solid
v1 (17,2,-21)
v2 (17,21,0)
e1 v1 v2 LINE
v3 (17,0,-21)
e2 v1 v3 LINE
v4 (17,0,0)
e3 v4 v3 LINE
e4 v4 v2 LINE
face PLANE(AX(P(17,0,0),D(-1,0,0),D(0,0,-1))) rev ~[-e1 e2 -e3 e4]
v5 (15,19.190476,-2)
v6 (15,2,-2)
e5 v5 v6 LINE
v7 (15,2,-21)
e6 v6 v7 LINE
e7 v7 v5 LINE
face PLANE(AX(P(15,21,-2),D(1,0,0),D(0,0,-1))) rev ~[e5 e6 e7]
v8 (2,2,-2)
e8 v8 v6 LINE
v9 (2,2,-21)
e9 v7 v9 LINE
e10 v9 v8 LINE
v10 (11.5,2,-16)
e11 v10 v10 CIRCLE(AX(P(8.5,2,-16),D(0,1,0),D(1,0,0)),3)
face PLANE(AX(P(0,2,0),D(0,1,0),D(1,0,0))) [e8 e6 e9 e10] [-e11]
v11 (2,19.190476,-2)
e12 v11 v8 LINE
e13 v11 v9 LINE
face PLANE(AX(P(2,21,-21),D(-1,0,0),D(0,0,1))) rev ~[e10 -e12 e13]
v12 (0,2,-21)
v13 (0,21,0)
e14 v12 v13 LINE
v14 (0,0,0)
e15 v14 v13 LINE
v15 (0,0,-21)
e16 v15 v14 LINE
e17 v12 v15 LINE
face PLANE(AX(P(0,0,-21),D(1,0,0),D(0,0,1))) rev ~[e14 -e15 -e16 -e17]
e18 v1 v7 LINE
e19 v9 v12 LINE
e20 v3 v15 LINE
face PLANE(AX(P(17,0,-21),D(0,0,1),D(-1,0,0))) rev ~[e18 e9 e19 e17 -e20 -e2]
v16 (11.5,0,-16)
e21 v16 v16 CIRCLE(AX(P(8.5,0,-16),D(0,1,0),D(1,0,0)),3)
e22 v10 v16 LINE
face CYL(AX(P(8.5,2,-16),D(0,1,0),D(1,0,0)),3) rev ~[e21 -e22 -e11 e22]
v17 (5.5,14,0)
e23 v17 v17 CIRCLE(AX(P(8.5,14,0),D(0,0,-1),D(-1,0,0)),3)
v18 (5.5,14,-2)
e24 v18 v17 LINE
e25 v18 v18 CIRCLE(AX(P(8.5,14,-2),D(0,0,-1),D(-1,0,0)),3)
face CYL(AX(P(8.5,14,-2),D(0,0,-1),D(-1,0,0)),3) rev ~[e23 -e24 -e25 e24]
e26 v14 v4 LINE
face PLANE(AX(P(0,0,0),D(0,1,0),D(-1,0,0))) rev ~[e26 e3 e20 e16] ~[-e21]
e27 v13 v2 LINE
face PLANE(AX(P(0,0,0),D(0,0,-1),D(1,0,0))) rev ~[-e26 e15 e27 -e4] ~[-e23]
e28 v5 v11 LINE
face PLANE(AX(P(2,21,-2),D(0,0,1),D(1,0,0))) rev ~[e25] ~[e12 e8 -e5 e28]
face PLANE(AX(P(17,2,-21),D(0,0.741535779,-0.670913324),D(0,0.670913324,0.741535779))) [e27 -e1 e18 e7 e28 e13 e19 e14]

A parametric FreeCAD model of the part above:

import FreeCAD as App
import Part
import Sketcher
from FreeCAD import Vector

doc = App.newDocument("Part")
body = doc.addObject("PartDesign::Body", "Body")

# Sketch on XZ plane
sketch1 = body.newObject("Sketcher::SketchObject", "Sketch")
sketch1.AttachmentSupport = (doc.getObject("XZ_Plane"), [""])
sketch1.MapMode = "FlatFace"
sketch1.addGeometry(Part.LineSegment(Vector(0, -21, 0), Vector(0, 0, 0)), False)
sketch1.addGeometry(Part.LineSegment(Vector(0, 0, 0), Vector(17, 0, 0)), False)
sketch1.addGeometry(Part.LineSegment(Vector(17, 0, 0), Vector(17, -21, 0)), False)
sketch1.addGeometry(Part.LineSegment(Vector(17, -21, 0), Vector(0, -21, 0)), False)
sketch1.addConstraint(Sketcher.Constraint("Coincident", 0, 2, 1, 1))
sketch1.addConstraint(Sketcher.Constraint("Coincident", 1, 2, 2, 1))
sketch1.addConstraint(Sketcher.Constraint("Coincident", 2, 2, 3, 1))
sketch1.addConstraint(Sketcher.Constraint("Coincident", 3, 2, 0, 1))
sketch1.addConstraint(Sketcher.Constraint("Vertical", 0))
sketch1.addConstraint(Sketcher.Constraint("Horizontal", 1))
sketch1.addConstraint(Sketcher.Constraint("Vertical", 2))
sketch1.addConstraint(Sketcher.Constraint("Horizontal", 3))
sketch1.addConstraint(Sketcher.Constraint("Coincident", 0, 2, -1, 1))
sketch1.addConstraint(Sketcher.Constraint("DistanceX", 1, 1, 1, 2, 17.0))
sketch1.addConstraint(Sketcher.Constraint("DistanceY", 0, 1, 0, 2, 21.0))
pad1 = body.newObject("PartDesign::Pad", "Pad")
pad1.Profile = sketch1
pad1.Length = 2
pad1.Reversed = True

# Sketch on XZ plane
sketch2 = body.newObject("Sketcher::SketchObject", "Sketch001")
sketch2.AttachmentSupport = (doc.getObject("XZ_Plane"), [""])
sketch2.MapMode = "FlatFace"
sketch2.AttachmentOffset = App.Placement(Vector(0, 0, -2), App.Rotation())
sketch2.addGeometry(Part.LineSegment(Vector(0, -21, 0), Vector(0, 0, 0)), False)
sketch2.addGeometry(Part.LineSegment(Vector(0, 0, 0), Vector(17, 0, 0)), False)
sketch2.addGeometry(Part.LineSegment(Vector(17, 0, 0), Vector(17, -21, 0)), False)
sketch2.addGeometry(Part.LineSegment(Vector(17, -21, 0), Vector(0, -21, 0)), False)
sketch2.addConstraint(Sketcher.Constraint("Coincident", 0, 2, 1, 1))
sketch2.addConstraint(Sketcher.Constraint("Coincident", 1, 2, 2, 1))
sketch2.addConstraint(Sketcher.Constraint("Coincident", 2, 2, 3, 1))
sketch2.addConstraint(Sketcher.Constraint("Coincident", 3, 2, 0, 1))
sketch2.addConstraint(Sketcher.Constraint("Vertical", 0))
sketch2.addConstraint(Sketcher.Constraint("Horizontal", 1))
sketch2.addConstraint(Sketcher.Constraint("Vertical", 2))
sketch2.addConstraint(Sketcher.Constraint("Horizontal", 3))
sketch2.addConstraint(Sketcher.Constraint("Coincident", 0, 2, -1, 1))
sketch2.addConstraint(Sketcher.Constraint("DistanceY", 0, 1, 0, 2, 21.0))
sketch2.addConstraint(Sketcher.Constraint("DistanceX", 1, 1, 1, 2, 17.0))
pad2 = body.newObject("PartDesign::Pad", "Pad001")
pad2.Profile = sketch2
pad2.Length = 19
pad2.Reversed = True

# Sketch on XZ plane
sketch3 = body.newObject("Sketcher::SketchObject", "Sketch002")
sketch3.AttachmentSupport = (doc.getObject("XZ_Plane"), [""])
sketch3.MapMode = "FlatFace"
sketch3.AttachmentOffset = App.Placement(Vector(0, 0, -21), App.Rotation())
sketch3.addGeometry(Part.LineSegment(Vector(15, -2, 0), Vector(15, -21, 0)), False)
sketch3.addGeometry(Part.LineSegment(Vector(15, -21, 0), Vector(2, -21, 0)), False)
sketch3.addGeometry(Part.LineSegment(Vector(2, -21, 0), Vector(2, -2, 0)), False)
sketch3.addGeometry(Part.LineSegment(Vector(2, -2, 0), Vector(15, -2, 0)), False)
sketch3.addConstraint(Sketcher.Constraint("Coincident", 0, 2, 1, 1))
sketch3.addConstraint(Sketcher.Constraint("Coincident", 1, 2, 2, 1))
sketch3.addConstraint(Sketcher.Constraint("Coincident", 2, 2, 3, 1))
sketch3.addConstraint(Sketcher.Constraint("Coincident", 3, 2, 0, 1))
sketch3.addConstraint(Sketcher.Constraint("Vertical", 0))
sketch3.addConstraint(Sketcher.Constraint("Horizontal", 1))
sketch3.addConstraint(Sketcher.Constraint("Vertical", 2))
sketch3.addConstraint(Sketcher.Constraint("Horizontal", 3))
sketch3.addConstraint(Sketcher.Constraint("DistanceX", 1, 2, 1, 1, 13.0))
sketch3.addConstraint(Sketcher.Constraint("DistanceY", 0, 2, 0, 1, 19.0))
sketch3.addConstraint(Sketcher.Constraint("DistanceX", -1, 1, 0, 2, 15.0))
sketch3.addConstraint(Sketcher.Constraint("DistanceY", 0, 2, -1, 1, 21.0))
pocket1 = body.newObject("PartDesign::Pocket", "Pocket")
pocket1.Profile = sketch3
pocket1.Length = 19
pocket1.Reversed = True

# Sketch on YZ plane
sketch4 = body.newObject("Sketcher::SketchObject", "Sketch003")
sketch4.AttachmentSupport = (doc.getObject("YZ_Plane"), [""])
sketch4.MapMode = "FlatFace"
sketch4.AttachmentOffset = App.Placement(Vector(0, 0, 17), App.Rotation())
sketch4.addGeometry(Part.LineSegment(Vector(21, -21, 0), Vector(21, 0, 0)), False)
sketch4.addGeometry(Part.LineSegment(Vector(21, 0, 0), Vector(2, -21, 0)), False)
sketch4.addGeometry(Part.LineSegment(Vector(2, -21, 0), Vector(21, -21, 0)), False)
sketch4.addConstraint(Sketcher.Constraint("Coincident", 0, 2, 1, 1))
sketch4.addConstraint(Sketcher.Constraint("Coincident", 1, 2, 2, 1))
sketch4.addConstraint(Sketcher.Constraint("Coincident", 2, 2, 0, 1))
sketch4.addConstraint(Sketcher.Constraint("Vertical", 0))
sketch4.addConstraint(Sketcher.Constraint("Horizontal", 2))
sketch4.addConstraint(Sketcher.Constraint("PointOnObject", 0, 2, -1))
sketch4.addConstraint(Sketcher.Constraint("DistanceX", 2, 1, 2, 2, 19.0))
sketch4.addConstraint(Sketcher.Constraint("DistanceY", 0, 1, 0, 2, 21.0))
sketch4.addConstraint(Sketcher.Constraint("DistanceX", -1, 1, 0, 2, 21.0))
pocket2 = body.newObject("PartDesign::Pocket", "Pocket001")
pocket2.Profile = sketch4
pocket2.Length = 19

# Sketch on XZ plane
sketch5 = body.newObject("Sketcher::SketchObject", "Sketch004")
sketch5.AttachmentSupport = (doc.getObject("XZ_Plane"), [""])
sketch5.MapMode = "FlatFace"
sketch5.AttachmentOffset = App.Placement(Vector(0, 0, -2), App.Rotation())
sketch5.addGeometry(Part.Circle(Vector(8.5, -16, 0), Vector(0, 0, 1), 3), False)
sketch5.addConstraint(Sketcher.Constraint("Diameter", 0, 6.0))
sketch5.addConstraint(Sketcher.Constraint("DistanceY", 0, 3, -1, 1, 16.0))
sketch5.addConstraint(Sketcher.Constraint("DistanceX", -1, 1, 0, 3, 8.5))
pocket3 = body.newObject("PartDesign::Pocket", "Pocket002")
pocket3.Profile = sketch5
pocket3.Length = 19
pocket3.Reversed = True

# Sketch on XY plane
sketch6 = body.newObject("Sketcher::SketchObject", "Sketch005")
sketch6.AttachmentSupport = (doc.getObject("XY_Plane"), [""])
sketch6.MapMode = "FlatFace"
sketch6.AttachmentOffset = App.Placement(Vector(0, 0, -2), App.Rotation())
sketch6.addGeometry(Part.Circle(Vector(8.5, 14, 0), Vector(0, 0, 1), 3), False)
sketch6.addConstraint(Sketcher.Constraint("Diameter", 0, 6.0))
sketch6.addConstraint(Sketcher.Constraint("DistanceY", -1, 1, 0, 3, 14.0))
sketch6.addConstraint(Sketcher.Constraint("DistanceX", -1, 1, 0, 3, 8.5))
pocket4 = body.newObject("PartDesign::Pocket", "Pocket003")
pocket4.Profile = sketch6
pocket4.Length = 19
pocket4.Reversed = True

doc.recompute()
